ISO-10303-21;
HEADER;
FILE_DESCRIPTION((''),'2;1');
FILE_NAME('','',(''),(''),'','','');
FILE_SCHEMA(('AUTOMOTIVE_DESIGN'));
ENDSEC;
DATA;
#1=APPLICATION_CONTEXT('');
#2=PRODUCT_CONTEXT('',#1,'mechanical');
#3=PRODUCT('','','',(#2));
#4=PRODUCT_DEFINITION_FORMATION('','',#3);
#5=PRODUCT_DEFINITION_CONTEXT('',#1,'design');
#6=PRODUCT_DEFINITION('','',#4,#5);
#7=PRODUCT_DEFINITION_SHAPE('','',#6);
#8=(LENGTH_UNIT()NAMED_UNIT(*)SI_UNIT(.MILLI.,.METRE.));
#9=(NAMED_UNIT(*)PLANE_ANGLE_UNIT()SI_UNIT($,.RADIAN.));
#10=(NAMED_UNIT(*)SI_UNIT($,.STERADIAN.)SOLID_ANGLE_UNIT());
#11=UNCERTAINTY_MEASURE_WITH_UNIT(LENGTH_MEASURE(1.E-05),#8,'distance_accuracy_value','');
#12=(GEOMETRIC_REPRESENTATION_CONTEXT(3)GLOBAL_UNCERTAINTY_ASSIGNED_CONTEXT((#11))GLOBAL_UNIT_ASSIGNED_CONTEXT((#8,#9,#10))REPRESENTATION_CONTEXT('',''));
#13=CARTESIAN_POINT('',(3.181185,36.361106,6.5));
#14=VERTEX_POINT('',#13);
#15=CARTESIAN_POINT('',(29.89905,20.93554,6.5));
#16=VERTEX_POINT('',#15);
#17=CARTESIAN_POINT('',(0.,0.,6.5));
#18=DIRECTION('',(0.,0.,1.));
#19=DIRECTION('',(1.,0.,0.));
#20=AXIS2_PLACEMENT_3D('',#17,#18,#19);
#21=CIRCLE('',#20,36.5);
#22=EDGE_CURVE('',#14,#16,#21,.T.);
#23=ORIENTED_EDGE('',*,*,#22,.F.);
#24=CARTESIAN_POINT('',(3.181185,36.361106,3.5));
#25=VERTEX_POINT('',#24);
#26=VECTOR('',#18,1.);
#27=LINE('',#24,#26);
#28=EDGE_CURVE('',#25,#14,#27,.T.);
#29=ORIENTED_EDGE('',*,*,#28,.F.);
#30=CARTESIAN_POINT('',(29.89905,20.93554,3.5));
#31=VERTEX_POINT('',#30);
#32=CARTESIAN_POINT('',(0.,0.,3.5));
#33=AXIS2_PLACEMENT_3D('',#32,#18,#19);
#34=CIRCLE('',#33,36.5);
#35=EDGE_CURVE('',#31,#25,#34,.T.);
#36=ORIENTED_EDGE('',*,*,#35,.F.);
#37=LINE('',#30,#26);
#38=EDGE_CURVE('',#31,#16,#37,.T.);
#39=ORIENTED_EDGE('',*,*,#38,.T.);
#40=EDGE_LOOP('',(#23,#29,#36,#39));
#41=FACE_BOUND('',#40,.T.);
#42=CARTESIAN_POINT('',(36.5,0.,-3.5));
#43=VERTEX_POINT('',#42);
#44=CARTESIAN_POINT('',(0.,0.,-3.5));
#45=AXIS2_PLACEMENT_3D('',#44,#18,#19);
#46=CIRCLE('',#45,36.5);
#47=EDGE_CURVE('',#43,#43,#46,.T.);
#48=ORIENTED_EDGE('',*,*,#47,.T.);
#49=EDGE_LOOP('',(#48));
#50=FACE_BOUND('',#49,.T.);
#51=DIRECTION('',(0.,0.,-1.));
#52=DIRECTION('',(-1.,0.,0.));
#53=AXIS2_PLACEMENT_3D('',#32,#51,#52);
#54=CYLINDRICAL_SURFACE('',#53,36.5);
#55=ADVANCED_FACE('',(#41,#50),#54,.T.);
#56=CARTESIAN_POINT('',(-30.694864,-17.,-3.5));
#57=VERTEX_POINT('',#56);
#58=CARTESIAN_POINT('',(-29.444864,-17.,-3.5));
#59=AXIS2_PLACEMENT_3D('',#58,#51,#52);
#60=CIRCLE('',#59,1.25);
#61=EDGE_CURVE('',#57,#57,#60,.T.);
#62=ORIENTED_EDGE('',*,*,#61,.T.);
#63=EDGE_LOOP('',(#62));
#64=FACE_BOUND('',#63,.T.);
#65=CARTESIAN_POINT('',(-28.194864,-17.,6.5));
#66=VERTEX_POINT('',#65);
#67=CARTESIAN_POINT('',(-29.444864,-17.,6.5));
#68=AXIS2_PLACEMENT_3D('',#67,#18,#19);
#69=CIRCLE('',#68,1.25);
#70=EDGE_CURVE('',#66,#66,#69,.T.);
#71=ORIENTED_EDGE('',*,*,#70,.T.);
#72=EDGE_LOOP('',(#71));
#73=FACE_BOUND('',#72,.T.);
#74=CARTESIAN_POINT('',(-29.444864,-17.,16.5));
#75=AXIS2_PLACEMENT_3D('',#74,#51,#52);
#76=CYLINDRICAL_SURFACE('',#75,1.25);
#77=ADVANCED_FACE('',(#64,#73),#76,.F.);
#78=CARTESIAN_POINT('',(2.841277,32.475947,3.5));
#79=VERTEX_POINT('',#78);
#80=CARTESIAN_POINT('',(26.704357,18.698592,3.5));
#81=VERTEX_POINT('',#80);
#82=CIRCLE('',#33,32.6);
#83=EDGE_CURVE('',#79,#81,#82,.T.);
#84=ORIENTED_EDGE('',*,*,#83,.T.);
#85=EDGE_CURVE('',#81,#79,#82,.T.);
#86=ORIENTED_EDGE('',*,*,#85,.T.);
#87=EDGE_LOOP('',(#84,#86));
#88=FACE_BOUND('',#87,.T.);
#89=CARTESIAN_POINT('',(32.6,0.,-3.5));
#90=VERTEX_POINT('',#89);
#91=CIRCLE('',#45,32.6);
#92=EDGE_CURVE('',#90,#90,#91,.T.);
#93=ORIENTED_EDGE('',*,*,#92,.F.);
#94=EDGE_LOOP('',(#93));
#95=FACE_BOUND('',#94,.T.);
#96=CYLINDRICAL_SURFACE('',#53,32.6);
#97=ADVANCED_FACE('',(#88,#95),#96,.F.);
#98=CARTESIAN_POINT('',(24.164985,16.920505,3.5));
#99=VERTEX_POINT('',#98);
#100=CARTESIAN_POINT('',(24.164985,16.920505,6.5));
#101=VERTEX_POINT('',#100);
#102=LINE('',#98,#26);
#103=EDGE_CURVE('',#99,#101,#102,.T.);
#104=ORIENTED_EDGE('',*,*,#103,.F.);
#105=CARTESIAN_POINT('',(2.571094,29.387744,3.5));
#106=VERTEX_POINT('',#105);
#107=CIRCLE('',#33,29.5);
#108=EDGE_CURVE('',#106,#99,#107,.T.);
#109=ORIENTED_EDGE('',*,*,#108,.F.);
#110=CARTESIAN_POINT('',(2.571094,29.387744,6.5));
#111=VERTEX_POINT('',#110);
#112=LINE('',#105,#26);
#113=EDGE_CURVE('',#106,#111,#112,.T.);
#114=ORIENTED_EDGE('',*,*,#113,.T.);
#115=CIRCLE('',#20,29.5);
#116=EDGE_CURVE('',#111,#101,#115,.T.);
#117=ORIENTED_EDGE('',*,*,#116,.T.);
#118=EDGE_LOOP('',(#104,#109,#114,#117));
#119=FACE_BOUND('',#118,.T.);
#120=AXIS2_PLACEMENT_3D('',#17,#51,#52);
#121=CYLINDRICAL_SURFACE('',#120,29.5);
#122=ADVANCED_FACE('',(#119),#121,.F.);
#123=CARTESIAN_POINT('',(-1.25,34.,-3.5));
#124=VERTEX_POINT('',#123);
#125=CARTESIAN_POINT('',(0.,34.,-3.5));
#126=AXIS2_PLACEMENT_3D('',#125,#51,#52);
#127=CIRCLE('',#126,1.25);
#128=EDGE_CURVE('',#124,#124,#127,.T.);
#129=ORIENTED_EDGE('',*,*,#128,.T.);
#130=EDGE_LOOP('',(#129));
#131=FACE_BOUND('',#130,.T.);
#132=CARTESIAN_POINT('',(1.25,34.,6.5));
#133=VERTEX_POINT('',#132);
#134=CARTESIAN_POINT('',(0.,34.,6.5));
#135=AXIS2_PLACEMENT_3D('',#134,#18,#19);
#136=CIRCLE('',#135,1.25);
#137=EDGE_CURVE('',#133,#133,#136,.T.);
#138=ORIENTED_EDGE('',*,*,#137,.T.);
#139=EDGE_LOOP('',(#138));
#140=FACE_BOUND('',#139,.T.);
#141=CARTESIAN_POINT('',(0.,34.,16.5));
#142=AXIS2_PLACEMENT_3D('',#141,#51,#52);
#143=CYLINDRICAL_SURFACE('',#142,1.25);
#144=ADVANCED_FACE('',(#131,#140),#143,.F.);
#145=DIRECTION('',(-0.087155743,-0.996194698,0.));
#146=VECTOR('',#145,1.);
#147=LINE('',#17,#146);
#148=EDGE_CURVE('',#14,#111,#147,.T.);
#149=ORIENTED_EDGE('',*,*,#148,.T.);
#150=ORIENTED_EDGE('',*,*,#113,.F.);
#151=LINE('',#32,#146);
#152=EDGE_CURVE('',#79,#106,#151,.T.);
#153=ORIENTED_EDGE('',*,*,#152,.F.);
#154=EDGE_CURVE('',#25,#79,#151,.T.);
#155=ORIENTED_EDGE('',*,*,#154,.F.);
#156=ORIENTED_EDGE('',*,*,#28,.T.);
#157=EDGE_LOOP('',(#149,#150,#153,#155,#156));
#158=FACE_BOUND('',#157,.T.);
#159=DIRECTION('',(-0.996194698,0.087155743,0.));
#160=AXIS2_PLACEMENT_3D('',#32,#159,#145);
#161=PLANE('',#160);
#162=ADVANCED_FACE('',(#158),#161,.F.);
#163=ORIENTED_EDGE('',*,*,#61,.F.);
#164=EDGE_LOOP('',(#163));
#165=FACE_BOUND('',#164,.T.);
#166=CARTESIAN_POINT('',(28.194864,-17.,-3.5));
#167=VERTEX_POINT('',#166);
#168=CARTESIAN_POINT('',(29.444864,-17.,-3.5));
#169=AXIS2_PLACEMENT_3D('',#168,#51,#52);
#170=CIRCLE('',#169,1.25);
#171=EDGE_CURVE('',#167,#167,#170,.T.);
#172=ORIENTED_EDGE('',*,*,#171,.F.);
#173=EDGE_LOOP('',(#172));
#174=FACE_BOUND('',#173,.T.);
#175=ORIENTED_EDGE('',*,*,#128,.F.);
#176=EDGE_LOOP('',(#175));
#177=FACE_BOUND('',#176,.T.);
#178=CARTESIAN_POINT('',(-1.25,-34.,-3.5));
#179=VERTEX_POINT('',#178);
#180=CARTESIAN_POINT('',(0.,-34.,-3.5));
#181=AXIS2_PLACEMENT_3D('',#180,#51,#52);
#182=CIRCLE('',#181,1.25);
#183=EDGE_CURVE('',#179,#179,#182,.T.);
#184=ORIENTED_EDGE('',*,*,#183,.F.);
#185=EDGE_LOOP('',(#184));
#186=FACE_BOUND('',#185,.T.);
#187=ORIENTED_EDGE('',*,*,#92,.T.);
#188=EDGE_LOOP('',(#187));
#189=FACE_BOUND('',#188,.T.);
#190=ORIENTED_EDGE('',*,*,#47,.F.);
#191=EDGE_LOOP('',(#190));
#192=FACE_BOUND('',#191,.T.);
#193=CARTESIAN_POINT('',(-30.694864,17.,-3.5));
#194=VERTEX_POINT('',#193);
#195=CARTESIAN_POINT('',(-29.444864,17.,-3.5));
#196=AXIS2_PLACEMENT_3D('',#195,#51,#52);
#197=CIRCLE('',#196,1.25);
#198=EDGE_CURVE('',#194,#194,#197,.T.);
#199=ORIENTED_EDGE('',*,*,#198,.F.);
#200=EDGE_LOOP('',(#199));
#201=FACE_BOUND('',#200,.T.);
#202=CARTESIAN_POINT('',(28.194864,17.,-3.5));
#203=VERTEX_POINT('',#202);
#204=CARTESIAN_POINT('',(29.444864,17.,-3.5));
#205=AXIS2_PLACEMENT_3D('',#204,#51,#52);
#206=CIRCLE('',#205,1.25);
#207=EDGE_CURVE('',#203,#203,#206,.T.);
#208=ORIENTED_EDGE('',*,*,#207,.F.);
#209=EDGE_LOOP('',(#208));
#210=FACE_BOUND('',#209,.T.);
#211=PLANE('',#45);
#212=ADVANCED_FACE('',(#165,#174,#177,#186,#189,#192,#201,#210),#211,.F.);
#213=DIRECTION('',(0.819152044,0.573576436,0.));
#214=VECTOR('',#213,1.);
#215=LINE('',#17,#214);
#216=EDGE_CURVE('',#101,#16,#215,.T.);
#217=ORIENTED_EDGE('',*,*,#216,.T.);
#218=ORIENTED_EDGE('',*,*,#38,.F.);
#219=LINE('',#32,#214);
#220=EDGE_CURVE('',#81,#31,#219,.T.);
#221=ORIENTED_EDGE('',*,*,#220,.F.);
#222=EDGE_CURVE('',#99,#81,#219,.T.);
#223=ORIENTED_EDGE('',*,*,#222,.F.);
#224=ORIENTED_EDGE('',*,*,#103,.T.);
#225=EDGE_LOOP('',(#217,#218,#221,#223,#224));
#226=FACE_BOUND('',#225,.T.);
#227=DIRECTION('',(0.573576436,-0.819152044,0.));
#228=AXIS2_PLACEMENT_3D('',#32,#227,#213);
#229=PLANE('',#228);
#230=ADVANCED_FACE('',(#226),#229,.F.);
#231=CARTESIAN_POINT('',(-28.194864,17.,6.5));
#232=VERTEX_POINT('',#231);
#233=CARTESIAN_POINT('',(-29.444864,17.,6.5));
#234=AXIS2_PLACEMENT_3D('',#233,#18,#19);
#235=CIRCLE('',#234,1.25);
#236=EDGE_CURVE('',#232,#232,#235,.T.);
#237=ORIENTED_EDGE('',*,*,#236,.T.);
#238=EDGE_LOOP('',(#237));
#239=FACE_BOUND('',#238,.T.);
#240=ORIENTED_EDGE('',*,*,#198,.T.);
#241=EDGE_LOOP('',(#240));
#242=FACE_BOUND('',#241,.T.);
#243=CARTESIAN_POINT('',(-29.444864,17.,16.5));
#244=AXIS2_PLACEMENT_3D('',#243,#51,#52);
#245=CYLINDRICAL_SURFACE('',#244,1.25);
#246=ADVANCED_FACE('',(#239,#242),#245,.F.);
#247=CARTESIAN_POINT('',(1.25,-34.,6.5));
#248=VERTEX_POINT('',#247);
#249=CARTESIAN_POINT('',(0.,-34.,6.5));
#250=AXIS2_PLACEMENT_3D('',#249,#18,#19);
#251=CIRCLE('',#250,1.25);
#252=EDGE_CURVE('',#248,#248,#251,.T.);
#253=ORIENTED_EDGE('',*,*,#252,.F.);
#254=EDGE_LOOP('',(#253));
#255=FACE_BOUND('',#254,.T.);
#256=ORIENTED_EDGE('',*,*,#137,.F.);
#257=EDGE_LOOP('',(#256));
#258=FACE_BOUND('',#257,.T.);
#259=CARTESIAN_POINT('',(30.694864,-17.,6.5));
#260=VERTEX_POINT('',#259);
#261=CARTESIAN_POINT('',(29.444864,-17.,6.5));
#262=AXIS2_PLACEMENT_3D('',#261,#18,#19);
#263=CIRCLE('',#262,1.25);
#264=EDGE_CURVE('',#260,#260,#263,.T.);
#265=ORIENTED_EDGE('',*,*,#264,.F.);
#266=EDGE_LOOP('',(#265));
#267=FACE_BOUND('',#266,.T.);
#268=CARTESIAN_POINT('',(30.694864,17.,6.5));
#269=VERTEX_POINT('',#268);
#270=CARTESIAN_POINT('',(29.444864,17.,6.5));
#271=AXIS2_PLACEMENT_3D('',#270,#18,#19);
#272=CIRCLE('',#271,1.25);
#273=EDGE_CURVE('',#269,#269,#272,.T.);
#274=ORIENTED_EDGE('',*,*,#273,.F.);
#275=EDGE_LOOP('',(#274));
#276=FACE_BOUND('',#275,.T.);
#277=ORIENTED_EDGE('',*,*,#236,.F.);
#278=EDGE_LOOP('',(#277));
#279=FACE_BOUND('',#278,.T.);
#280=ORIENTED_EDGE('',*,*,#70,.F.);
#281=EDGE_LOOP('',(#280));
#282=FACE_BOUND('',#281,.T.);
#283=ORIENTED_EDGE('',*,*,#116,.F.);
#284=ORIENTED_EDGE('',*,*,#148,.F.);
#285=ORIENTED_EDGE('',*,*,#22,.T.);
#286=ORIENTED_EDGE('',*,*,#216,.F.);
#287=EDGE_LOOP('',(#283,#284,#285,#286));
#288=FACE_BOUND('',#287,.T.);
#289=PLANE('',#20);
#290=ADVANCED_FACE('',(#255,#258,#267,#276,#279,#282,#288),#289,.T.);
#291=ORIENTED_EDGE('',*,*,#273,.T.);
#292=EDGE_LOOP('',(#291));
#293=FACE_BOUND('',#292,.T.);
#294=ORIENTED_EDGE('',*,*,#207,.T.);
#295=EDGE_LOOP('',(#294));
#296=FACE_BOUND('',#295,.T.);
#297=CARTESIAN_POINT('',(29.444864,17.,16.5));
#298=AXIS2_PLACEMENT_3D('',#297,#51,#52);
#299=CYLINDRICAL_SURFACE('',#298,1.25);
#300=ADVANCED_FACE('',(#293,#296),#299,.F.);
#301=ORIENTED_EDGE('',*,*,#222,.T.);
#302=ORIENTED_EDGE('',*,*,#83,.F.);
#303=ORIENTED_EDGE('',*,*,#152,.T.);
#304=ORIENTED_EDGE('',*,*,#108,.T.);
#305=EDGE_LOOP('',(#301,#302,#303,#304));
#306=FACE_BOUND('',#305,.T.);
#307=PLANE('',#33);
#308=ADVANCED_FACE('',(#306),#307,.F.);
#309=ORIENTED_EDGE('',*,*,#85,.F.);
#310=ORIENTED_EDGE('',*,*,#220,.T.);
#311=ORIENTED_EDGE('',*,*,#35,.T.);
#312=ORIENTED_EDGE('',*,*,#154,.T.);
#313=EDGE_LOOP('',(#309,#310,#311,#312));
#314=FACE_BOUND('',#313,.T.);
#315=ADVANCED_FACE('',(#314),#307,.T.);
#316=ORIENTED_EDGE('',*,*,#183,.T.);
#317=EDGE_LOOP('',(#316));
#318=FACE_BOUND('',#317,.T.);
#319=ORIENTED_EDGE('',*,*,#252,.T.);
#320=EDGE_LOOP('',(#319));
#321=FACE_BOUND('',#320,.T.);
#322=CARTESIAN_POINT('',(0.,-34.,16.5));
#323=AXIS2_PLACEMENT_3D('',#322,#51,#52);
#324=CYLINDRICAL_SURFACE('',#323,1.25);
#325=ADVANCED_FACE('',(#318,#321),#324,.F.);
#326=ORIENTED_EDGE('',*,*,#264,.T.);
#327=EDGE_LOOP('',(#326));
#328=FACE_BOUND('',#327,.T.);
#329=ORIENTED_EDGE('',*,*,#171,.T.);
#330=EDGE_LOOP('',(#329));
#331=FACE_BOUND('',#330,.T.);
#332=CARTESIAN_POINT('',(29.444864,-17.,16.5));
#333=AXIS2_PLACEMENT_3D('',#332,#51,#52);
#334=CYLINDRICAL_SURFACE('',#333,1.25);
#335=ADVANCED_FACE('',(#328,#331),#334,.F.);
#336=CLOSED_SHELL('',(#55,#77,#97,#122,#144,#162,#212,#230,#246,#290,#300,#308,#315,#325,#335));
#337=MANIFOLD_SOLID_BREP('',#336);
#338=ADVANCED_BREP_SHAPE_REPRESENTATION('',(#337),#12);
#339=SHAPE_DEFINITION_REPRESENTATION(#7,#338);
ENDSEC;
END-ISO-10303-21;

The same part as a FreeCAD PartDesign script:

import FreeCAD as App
import Part
import Sketcher

V = App.Vector
Q = App.Units.Quantity

doc = App.newDocument("Part")
body = doc.addObject("PartDesign::Body", "Body")

sketch1 = doc.addObject("Sketcher::SketchObject", "Sketch")
body.addObject(sketch1)
sketch1.AttachmentSupport = (doc.XY_Plane, [""])
sketch1.MapMode = "FlatFace"
sketch1.addGeometry([
    Part.Circle(V(0, 0, 0), V(0, 0, 1), 36),
    Part.Circle(V(0, 0, 0), V(0, 0, 1), 33),
], False)
sketch1.addConstraint([
    Sketcher.Constraint("Coincident", 0, 3, -1, 1),
    Sketcher.Constraint("Coincident", 1, 3, -1, 1),
    Sketcher.Constraint("Diameter", 0, Q("73 mm")),
    Sketcher.Constraint("Diameter", 1, Q("65.2 mm")),
])
pad1 = doc.addObject("PartDesign::Pad", "Pad")
body.addObject(pad1)
pad1.Profile = sketch1
pad1.Length = 7
pad1.Midplane = True

sketch2 = doc.addObject("Sketcher::SketchObject", "Sketch001")
body.addObject(sketch2)
sketch2.AttachmentSupport = (doc.XY_Plane, [""])
sketch2.MapMode = "FlatFace"
sketch2.AttachmentOffset = App.Placement(V(0, 0, 6.5), App.Rotation())
sketch2.addGeometry([
    Part.Circle(V(0, 0, 0), V(0, 0, 1), 36),
    Part.Circle(V(0, 0, 0), V(0, 0, 1), 30),
], False)
sketch2.addConstraint([
    Sketcher.Constraint("Coincident", 0, 3, -1, 1),
    Sketcher.Constraint("Coincident", 1, 3, -1, 1),
    Sketcher.Constraint("Diameter", 0, Q("73 mm")),
    Sketcher.Constraint("Diameter", 1, Q("59 mm")),
])
pad2 = doc.addObject("PartDesign::Pad", "Pad001")
body.addObject(pad2)
pad2.Profile = sketch2
pad2.Length = 3
pad2.Reversed = True

sketch3 = doc.addObject("Sketcher::SketchObject", "Sketch002")
body.addObject(sketch3)
sketch3.AttachmentSupport = (doc.XY_Plane, [""])
sketch3.MapMode = "FlatFace"
sketch3.AttachmentOffset = App.Placement(V(0, 0, -3.5), App.Rotation())
sketch3.addGeometry([
    Part.Circle(V(0, 34, 0), V(0, 0, 1), 1.2),
    Part.Circle(V(-29.4, 17, 0), V(0, 0, 1), 1.2),
    Part.Circle(V(-29.4, -17, 0), V(0, 0, 1), 1.2),
    Part.Circle(V(0, -34, 0), V(0, 0, 1), 1.2),
    Part.Circle(V(29.4, -17, 0), V(0, 0, 1), 1.2),
    Part.Circle(V(29.4, 17, 0), V(0, 0, 1), 1.2),
], False)
sketch3.addConstraint([
    Sketcher.Constraint("Equal", 0, 1),
    Sketcher.Constraint("Equal", 1, 2),
    Sketcher.Constraint("Equal", 2, 3),
    Sketcher.Constraint("Equal", 3, 4),
    Sketcher.Constraint("Equal", 4, 5),
    Sketcher.Constraint("Symmetric", 0, 3, 3, 3, -1, 1),
    Sketcher.Constraint("Symmetric", 1, 3, 4, 3, -1, 1),
    Sketcher.Constraint("Symmetric", 2, 3, 5, 3, -1, 1),
    Sketcher.Constraint("Symmetric", 2, 3, 4, 3, -2),
    Sketcher.Constraint("PointOnObject", 0, 3, -2),
    Sketcher.Constraint("Diameter", 0, Q("2.5 mm")),
    Sketcher.Constraint("DistanceY", -1, 1, 0, 3, Q("34 mm")),
    Sketcher.Constraint("DistanceY", -1, 1, 1, 3, Q("17 mm")),
    Sketcher.Constraint("DistanceX", 1, 3, -1, 1, Q("29.444864 mm")),
])
pocket1 = doc.addObject("PartDesign::Pocket", "Pocket")
body.addObject(pocket1)
pocket1.Profile = sketch3
pocket1.Length = 20
pocket1.Reversed = True

sketch4 = doc.addObject("Sketcher::SketchObject", "Sketch003")
body.addObject(sketch4)
sketch4.AttachmentSupport = (doc.XY_Plane, [""])
sketch4.MapMode = "FlatFace"
sketch4.AttachmentOffset = App.Placement(V(0, 0, 6.5), App.Rotation())
sketch4.addGeometry([
    Part.LineSegment(V(19, 221, 0), V(3, 36, 0)),
    Part.LineSegment(V(3, 36, 0), V(0, 0, 0)),
    Part.LineSegment(V(0, 0, 0), V(30, 21, 0)),
    Part.LineSegment(V(30, 21, 0), V(182, 127, 0)),
    Part.LineSegment(V(182, 127, 0), V(368, 449, 0)),
    Part.LineSegment(V(368, 449, 0), V(205, 543, 0)),
    Part.LineSegment(V(205, 543, 0), V(19, 221, 0)),
], False)
sketch4.addConstraint([
    Sketcher.Constraint("Coincident", 0, 2, 1, 1),
    Sketcher.Constraint("Coincident", 1, 2, 2, 1),
    Sketcher.Constraint("Coincident", 2, 2, 3, 1),
    Sketcher.Constraint("Coincident", 3, 2, 4, 1),
    Sketcher.Constraint("Coincident", 4, 2, 5, 1),
    Sketcher.Constraint("Coincident", 5, 2, 6, 1),
    Sketcher.Constraint("Coincident", 6, 2, 0, 1),
    Sketcher.Constraint("Coincident", 1, 2, -1, 1),
    Sketcher.Constraint("Parallel", 0, 1),
    Sketcher.Constraint("Parallel", 2, 3),
    Sketcher.Constraint("Perpendicular", 4, 5),
    Sketcher.Constraint("Perpendicular", 5, 6),
    Sketcher.Constraint("Equal", 1, 2),
    Sketcher.Constraint("Equal", 0, 3),
    Sketcher.Constraint("Equal", 4, 6),
    Sketcher.Constraint("Angle", 0, Q("-95 deg")),
    Sketcher.Constraint("Angle", 2, Q("35 deg")),
    Sketcher.Constraint("Distance", 1, Q("36.5 mm")),
    Sketcher.Constraint("DistanceX", -1, 1, 3, 2, Q("181.9228 mm")),
    Sketcher.Constraint("DistanceX", -1, 1, 4, 2, Q("367.509531 mm")),
])
pocket2 = doc.addObject("PartDesign::Pocket", "Pocket001")
body.addObject(pocket2)
pocket2.Profile = sketch4
pocket2.Length = 3

doc.recompute()
